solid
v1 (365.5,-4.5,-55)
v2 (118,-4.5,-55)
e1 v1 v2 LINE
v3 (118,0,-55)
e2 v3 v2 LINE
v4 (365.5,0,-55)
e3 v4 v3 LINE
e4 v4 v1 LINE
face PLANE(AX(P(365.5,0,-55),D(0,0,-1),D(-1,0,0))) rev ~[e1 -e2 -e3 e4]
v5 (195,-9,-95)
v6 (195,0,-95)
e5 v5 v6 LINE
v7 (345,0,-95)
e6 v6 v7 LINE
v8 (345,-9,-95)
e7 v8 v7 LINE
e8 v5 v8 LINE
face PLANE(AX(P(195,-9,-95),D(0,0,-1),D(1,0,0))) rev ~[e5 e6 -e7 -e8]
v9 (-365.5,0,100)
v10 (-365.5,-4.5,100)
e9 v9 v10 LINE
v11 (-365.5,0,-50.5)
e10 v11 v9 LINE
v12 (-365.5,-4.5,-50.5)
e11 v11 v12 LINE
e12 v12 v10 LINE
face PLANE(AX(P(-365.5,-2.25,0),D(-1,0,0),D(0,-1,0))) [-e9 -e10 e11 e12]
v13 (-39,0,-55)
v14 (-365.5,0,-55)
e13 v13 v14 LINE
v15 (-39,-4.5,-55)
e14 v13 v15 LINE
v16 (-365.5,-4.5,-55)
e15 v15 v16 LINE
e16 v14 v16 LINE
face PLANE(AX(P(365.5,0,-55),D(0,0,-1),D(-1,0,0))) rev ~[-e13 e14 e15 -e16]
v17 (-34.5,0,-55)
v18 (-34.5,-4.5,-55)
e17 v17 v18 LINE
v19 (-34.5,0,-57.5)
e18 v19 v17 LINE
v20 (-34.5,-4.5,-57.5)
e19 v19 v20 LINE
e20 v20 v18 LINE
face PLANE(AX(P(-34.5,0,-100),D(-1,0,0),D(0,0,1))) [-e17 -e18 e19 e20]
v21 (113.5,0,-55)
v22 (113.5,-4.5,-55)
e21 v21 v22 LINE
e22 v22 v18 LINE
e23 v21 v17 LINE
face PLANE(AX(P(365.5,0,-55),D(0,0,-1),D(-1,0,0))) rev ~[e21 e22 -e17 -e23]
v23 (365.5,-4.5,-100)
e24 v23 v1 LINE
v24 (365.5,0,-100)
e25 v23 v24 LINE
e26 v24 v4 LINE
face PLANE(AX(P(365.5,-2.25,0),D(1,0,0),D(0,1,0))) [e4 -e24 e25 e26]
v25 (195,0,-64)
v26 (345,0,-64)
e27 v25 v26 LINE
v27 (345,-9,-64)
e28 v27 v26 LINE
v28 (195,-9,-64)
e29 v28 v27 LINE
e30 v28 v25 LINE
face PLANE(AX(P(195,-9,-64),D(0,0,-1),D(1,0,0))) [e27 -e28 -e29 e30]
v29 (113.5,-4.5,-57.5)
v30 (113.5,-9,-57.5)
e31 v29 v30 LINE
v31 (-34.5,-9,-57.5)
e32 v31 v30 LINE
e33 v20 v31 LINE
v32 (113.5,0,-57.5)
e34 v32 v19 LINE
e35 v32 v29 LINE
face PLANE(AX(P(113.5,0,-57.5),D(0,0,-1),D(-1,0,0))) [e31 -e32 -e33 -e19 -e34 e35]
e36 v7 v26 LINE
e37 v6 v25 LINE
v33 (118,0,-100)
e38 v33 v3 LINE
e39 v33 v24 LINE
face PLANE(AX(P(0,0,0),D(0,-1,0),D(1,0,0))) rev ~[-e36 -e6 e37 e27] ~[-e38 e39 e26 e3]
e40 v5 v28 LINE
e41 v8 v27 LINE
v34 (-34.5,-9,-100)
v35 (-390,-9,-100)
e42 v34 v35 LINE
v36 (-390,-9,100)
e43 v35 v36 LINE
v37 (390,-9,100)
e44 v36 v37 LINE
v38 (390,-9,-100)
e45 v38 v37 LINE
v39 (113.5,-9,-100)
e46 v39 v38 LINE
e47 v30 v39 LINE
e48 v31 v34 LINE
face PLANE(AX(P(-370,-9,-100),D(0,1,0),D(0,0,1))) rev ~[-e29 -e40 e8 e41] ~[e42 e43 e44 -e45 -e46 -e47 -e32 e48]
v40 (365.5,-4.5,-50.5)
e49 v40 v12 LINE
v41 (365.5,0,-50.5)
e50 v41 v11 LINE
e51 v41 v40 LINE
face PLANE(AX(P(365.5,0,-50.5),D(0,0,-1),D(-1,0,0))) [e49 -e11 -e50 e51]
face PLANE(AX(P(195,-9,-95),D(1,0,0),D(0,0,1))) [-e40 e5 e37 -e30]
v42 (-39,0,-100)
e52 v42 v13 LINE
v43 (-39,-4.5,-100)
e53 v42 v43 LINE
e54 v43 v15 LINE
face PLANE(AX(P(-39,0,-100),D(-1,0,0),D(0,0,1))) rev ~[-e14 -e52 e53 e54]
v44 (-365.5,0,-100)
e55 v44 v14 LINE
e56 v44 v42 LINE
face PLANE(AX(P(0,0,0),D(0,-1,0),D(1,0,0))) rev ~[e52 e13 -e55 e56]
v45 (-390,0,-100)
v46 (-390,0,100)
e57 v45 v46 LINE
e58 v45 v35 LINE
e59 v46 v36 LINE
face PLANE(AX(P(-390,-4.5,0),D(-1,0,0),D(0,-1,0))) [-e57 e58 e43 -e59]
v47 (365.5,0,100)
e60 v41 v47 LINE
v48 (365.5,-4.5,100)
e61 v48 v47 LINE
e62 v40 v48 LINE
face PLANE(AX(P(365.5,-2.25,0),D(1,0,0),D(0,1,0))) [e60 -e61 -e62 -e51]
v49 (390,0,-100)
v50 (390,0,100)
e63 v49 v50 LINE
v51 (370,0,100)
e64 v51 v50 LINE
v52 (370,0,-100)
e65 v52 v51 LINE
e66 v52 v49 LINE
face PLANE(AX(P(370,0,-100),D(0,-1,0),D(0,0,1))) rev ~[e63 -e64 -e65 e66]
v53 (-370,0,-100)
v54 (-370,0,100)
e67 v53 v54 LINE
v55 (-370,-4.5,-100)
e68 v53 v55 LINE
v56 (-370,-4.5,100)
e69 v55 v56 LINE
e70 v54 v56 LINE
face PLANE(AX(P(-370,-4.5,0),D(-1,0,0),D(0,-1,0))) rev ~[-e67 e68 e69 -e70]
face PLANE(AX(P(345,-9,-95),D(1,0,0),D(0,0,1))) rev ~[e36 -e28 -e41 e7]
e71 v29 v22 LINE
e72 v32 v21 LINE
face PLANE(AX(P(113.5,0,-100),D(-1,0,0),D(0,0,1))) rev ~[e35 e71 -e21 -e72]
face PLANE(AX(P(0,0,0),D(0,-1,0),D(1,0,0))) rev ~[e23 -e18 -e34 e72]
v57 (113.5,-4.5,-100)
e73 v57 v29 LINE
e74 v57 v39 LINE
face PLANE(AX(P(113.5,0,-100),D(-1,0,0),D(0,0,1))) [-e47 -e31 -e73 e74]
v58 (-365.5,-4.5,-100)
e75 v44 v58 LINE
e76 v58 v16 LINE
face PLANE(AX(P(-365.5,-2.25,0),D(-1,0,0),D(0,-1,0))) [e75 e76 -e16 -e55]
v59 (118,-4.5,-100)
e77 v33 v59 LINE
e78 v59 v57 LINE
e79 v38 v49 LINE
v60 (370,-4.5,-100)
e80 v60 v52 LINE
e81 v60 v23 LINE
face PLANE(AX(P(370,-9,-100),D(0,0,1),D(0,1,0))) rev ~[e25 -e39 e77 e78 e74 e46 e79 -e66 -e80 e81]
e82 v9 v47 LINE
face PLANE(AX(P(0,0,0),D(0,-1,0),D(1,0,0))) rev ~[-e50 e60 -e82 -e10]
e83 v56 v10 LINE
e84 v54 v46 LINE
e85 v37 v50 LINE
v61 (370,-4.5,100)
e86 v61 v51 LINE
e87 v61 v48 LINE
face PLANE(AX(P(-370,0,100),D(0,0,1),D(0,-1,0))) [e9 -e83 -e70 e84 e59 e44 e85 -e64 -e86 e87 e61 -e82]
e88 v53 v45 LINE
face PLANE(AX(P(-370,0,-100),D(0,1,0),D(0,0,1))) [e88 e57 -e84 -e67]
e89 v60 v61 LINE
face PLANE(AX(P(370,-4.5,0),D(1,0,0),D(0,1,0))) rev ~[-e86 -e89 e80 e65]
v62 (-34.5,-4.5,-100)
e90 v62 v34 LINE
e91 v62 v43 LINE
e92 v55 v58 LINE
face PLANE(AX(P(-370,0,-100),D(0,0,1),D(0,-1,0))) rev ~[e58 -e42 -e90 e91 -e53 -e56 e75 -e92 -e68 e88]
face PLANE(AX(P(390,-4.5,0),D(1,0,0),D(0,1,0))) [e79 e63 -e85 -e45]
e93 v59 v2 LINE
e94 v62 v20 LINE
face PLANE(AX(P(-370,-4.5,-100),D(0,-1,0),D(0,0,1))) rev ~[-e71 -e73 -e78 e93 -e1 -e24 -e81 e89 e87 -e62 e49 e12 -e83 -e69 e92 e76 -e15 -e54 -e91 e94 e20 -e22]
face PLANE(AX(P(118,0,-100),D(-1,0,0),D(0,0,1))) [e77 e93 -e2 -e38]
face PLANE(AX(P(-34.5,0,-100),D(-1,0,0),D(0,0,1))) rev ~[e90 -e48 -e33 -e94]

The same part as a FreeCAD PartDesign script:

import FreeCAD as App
import Part
import Sketcher

doc = App.newDocument("Part")
body = doc.addObject("PartDesign::Body", "Body")

sketch1 = body.newObject("Sketcher::SketchObject", "Sketch")
sketch1.AttachmentSupport = (doc.getObject("XZ_Plane"), [""])
sketch1.MapMode = "FlatFace"
sketch1.addGeometry(Part.LineSegment(App.Vector(-370, 100, 0), App.Vector(-370, -100, 0)), False)
sketch1.addGeometry(Part.LineSegment(App.Vector(-370, -100, 0), App.Vector(370, -100, 0)), False)
sketch1.addGeometry(Part.LineSegment(App.Vector(370, -100, 0), App.Vector(370, 100, 0)), False)
sketch1.addGeometry(Part.LineSegment(App.Vector(370, 100, 0), App.Vector(-370, 100, 0)), False)
sketch1.addConstraint(Sketcher.Constraint("Coincident", 0, 2, 1, 1))
sketch1.addConstraint(Sketcher.Constraint("Coincident", 1, 2, 2, 1))
sketch1.addConstraint(Sketcher.Constraint("Coincident", 2, 2, 3, 1))
sketch1.addConstraint(Sketcher.Constraint("Coincident", 3, 2, 0, 1))
sketch1.addConstraint(Sketcher.Constraint("Vertical", 0))
sketch1.addConstraint(Sketcher.Constraint("Horizontal", 1))
sketch1.addConstraint(Sketcher.Constraint("Vertical", 2))
sketch1.addConstraint(Sketcher.Constraint("Horizontal", 3))
sketch1.addConstraint(Sketcher.Constraint("Symmetric", 0, 2, 2, 2, -1, 1))
sketch1.addConstraint(Sketcher.Constraint("DistanceX", 1, 1, 1, 2, 740.0))
sketch1.addConstraint(Sketcher.Constraint("DistanceY", 0, 2, 0, 1, 200.0))
pad1 = body.newObject("PartDesign::Pad", "Pad")
pad1.Profile = sketch1
pad1.Length = 9

sketch2 = body.newObject("Sketcher::SketchObject", "Sketch001")
sketch2.AttachmentSupport = (doc.getObject("YZ_Plane"), [""])
sketch2.MapMode = "FlatFace"
sketch2.AttachmentOffset = App.Placement(App.Vector(0, 0, 370), App.Rotation())
sketch2.addGeometry(Part.LineSegment(App.Vector(-4.5, 100, 0), App.Vector(-4.5, -100, 0)), False)
sketch2.addGeometry(Part.LineSegment(App.Vector(-4.5, -100, 0), App.Vector(0, -100, 0)), False)
sketch2.addGeometry(Part.LineSegment(App.Vector(0, -100, 0), App.Vector(0, 100, 0)), False)
sketch2.addGeometry(Part.LineSegment(App.Vector(0, 100, 0), App.Vector(-4.5, 100, 0)), False)
sketch2.addConstraint(Sketcher.Constraint("Coincident", 0, 2, 1, 1))
sketch2.addConstraint(Sketcher.Constraint("Coincident", 1, 2, 2, 1))
sketch2.addConstraint(Sketcher.Constraint("Coincident", 2, 2, 3, 1))
sketch2.addConstraint(Sketcher.Constraint("Coincident", 3, 2, 0, 1))
sketch2.addConstraint(Sketcher.Constraint("Vertical", 0))
sketch2.addConstraint(Sketcher.Constraint("Horizontal", 1))
sketch2.addConstraint(Sketcher.Constraint("Vertical", 2))
sketch2.addConstraint(Sketcher.Constraint("Horizontal", 3))
sketch2.addConstraint(Sketcher.Constraint("Symmetric", 1, 2, 2, 2, -1, 1))
sketch2.addConstraint(Sketcher.Constraint("DistanceY", 0, 2, 0, 1, 200.0))
sketch2.addConstraint(Sketcher.Constraint("DistanceX", 1, 1, 1, 2, 4.5))
pocket1 = body.newObject("PartDesign::Pocket", "Pocket")
pocket1.Profile = sketch2
pocket1.Length = 4.5

sketch3 = body.newObject("Sketcher::SketchObject", "Sketch002")
sketch3.AttachmentSupport = (doc.getObject("YZ_Plane"), [""])
sketch3.MapMode = "FlatFace"
sketch3.AttachmentOffset = App.Placement(App.Vector(0, 0, -370), App.Rotation())
sketch3.addGeometry(Part.LineSegment(App.Vector(0, 100, 0), App.Vector(0, -100, 0)), False)
sketch3.addGeometry(Part.LineSegment(App.Vector(0, -100, 0), App.Vector(-4.5, -100, 0)), False)
sketch3.addGeometry(Part.LineSegment(App.Vector(-4.5, -100, 0), App.Vector(-4.5, 100, 0)), False)
sketch3.addGeometry(Part.LineSegment(App.Vector(-4.5, 100, 0), App.Vector(0, 100, 0)), False)
sketch3.addConstraint(Sketcher.Constraint("Coincident", 0, 2, 1, 1))
sketch3.addConstraint(Sketcher.Constraint("Coincident", 1, 2, 2, 1))
sketch3.addConstraint(Sketcher.Constraint("Coincident", 2, 2, 3, 1))
sketch3.addConstraint(Sketcher.Constraint("Coincident", 3, 2, 0, 1))
sketch3.addConstraint(Sketcher.Constraint("Vertical", 0))
sketch3.addConstraint(Sketcher.Constraint("Horizontal", 1))
sketch3.addConstraint(Sketcher.Constraint("Vertical", 2))
sketch3.addConstraint(Sketcher.Constraint("Horizontal", 3))
sketch3.addConstraint(Sketcher.Constraint("Symmetric", 0, 2, 3, 2, -1, 1))
sketch3.addConstraint(Sketcher.Constraint("DistanceY", 0, 2, 0, 1, 200.0))
sketch3.addConstraint(Sketcher.Constraint("DistanceX", 1, 2, 1, 1, 4.5))
pocket2 = body.newObject("PartDesign::Pocket", "Pocket001")
pocket2.Profile = sketch3
pocket2.Length = 4.5
pocket2.Reversed = True

sketch4 = body.newObject("Sketcher::SketchObject", "Sketch003")
sketch4.AttachmentSupport = (doc.getObject("XZ_Plane"), [""])
sketch4.MapMode = "FlatFace"
sketch4.addGeometry(Part.LineSegment(App.Vector(365.5, -50.5, 0), App.Vector(365.5, -55, 0)), False)
sketch4.addGeometry(Part.LineSegment(App.Vector(365.5, -55, 0), App.Vector(-365.5, -55, 0)), False)
sketch4.addGeometry(Part.LineSegment(App.Vector(-365.5, -55, 0), App.Vector(-365.5, -50.5, 0)), False)
sketch4.addGeometry(Part.LineSegment(App.Vector(-365.5, -50.5, 0), App.Vector(365.5, -50.5, 0)), False)
sketch4.addConstraint(Sketcher.Constraint("Coincident", 0, 2, 1, 1))
sketch4.addConstraint(Sketcher.Constraint("Coincident", 1, 2, 2, 1))
sketch4.addConstraint(Sketcher.Constraint("Coincident", 2, 2, 3, 1))
sketch4.addConstraint(Sketcher.Constraint("Coincident", 3, 2, 0, 1))
sketch4.addConstraint(Sketcher.Constraint("Vertical", 0))
sketch4.addConstraint(Sketcher.Constraint("Horizontal", 1))
sketch4.addConstraint(Sketcher.Constraint("Vertical", 2))
sketch4.addConstraint(Sketcher.Constraint("Horizontal", 3))
sketch4.addConstraint(Sketcher.Constraint("DistanceX", 1, 2, 1, 1, 731.0))
sketch4.addConstraint(Sketcher.Constraint("DistanceY", 0, 2, 0, 1, 4.5))
sketch4.addConstraint(Sketcher.Constraint("DistanceY", 0, 2, -1, 1, 55.0))
sketch4.addConstraint(Sketcher.Constraint("DistanceX", -1, 1, 0, 2, 365.5))
pocket3 = body.newObject("PartDesign::Pocket", "Pocket002")
pocket3.Profile = sketch4
pocket3.Length = 4.5
pocket3.Reversed = True

sketch5 = body.newObject("Sketcher::SketchObject", "Sketch004")
sketch5.AttachmentSupport = (doc.getObject("XZ_Plane"), [""])
sketch5.MapMode = "FlatFace"
sketch5.AttachmentOffset = App.Placement(App.Vector(0, 0, 9), App.Rotation())
sketch5.addGeometry(Part.LineSegment(App.Vector(195, -64, 0), App.Vector(195, -95, 0)), False)
sketch5.addGeometry(Part.LineSegment(App.Vector(195, -95, 0), App.Vector(345, -95, 0)), False)
sketch5.addGeometry(Part.LineSegment(App.Vector(345, -95, 0), App.Vector(345, -64, 0)), False)
sketch5.addGeometry(Part.LineSegment(App.Vector(345, -64, 0), App.Vector(195, -64, 0)), False)
sketch5.addConstraint(Sketcher.Constraint("Coincident", 0, 2, 1, 1))
sketch5.addConstraint(Sketcher.Constraint("Coincident", 1, 2, 2, 1))
sketch5.addConstraint(Sketcher.Constraint("Coincident", 2, 2, 3, 1))
sketch5.addConstraint(Sketcher.Constraint("Coincident", 3, 2, 0, 1))
sketch5.addConstraint(Sketcher.Constraint("Vertical", 0))
sketch5.addConstraint(Sketcher.Constraint("Horizontal", 1))
sketch5.addConstraint(Sketcher.Constraint("Vertical", 2))
sketch5.addConstraint(Sketcher.Constraint("Horizontal", 3))
sketch5.addConstraint(Sketcher.Constraint("DistanceX", 1, 1, 1, 2, 150.0))
sketch5.addConstraint(Sketcher.Constraint("DistanceY", 0, 2, 0, 1, 31.0))
sketch5.addConstraint(Sketcher.Constraint("DistanceX", -1, 1, 0, 2, 195.0))
sketch5.addConstraint(Sketcher.Constraint("DistanceY", 0, 2, -1, 1, 95.0))
pocket4 = body.newObject("PartDesign::Pocket", "Pocket003")
pocket4.Profile = sketch5
pocket4.Type = "ThroughAll"

sketch6 = body.newObject("Sketcher::SketchObject", "Sketch005")
sketch6.AttachmentSupport = (doc.getObject("XZ_Plane"), [""])
sketch6.MapMode = "FlatFace"
sketch6.addGeometry(Part.LineSegment(App.Vector(113.5, -57.5, 0), App.Vector(113.5, -100, 0)), False)
sketch6.addGeometry(Part.LineSegment(App.Vector(113.5, -100, 0), App.Vector(-34.5, -100, 0)), False)
sketch6.addGeometry(Part.LineSegment(App.Vector(-34.5, -100, 0), App.Vector(-34.5, -57.5, 0)), False)
sketch6.addGeometry(Part.LineSegment(App.Vector(-34.5, -57.5, 0), App.Vector(113.5, -57.5, 0)), False)
sketch6.addConstraint(Sketcher.Constraint("Coincident", 0, 2, 1, 1))
sketch6.addConstraint(Sketcher.Constraint("Coincident", 1, 2, 2, 1))
sketch6.addConstraint(Sketcher.Constraint("Coincident", 2, 2, 3, 1))
sketch6.addConstraint(Sketcher.Constraint("Coincident", 3, 2, 0, 1))
sketch6.addConstraint(Sketcher.Constraint("Vertical", 0))
sketch6.addConstraint(Sketcher.Constraint("Horizontal", 1))
sketch6.addConstraint(Sketcher.Constraint("Vertical", 2))
sketch6.addConstraint(Sketcher.Constraint("Horizontal", 3))
sketch6.addConstraint(Sketcher.Constraint("DistanceX", 1, 2, 1, 1, 148.0))
sketch6.addConstraint(Sketcher.Constraint("DistanceY", 0, 2, 0, 1, 42.5))
sketch6.addConstraint(Sketcher.Constraint("DistanceY", 0, 2, -1, 1, 100.0))
sketch6.addConstraint(Sketcher.Constraint("DistanceX", -1, 1, 0, 2, 113.5))
pocket5 = body.newObject("PartDesign::Pocket", "Pocket004")
pocket5.Profile = sketch6
pocket5.Type = "ThroughAll"
pocket5.Reversed = True

sketch7 = body.newObject("Sketcher::SketchObject", "Sketch006")
sketch7.AttachmentSupport = (doc.getObject("XZ_Plane"), [""])
sketch7.MapMode = "FlatFace"
sketch7.addGeometry(Part.LineSegment(App.Vector(-34.5, -55, 0), App.Vector(-34.5, -100, 0)), False)
sketch7.addGeometry(Part.LineSegment(App.Vector(-34.5, -100, 0), App.Vector(-39, -100, 0)), False)
sketch7.addGeometry(Part.LineSegment(App.Vector(-39, -100, 0), App.Vector(-39, -55, 0)), False)
sketch7.addGeometry(Part.LineSegment(App.Vector(-39, -55, 0), App.Vector(-34.5, -55, 0)), False)
sketch7.addGeometry(Part.LineSegment(App.Vector(118, -55, 0), App.Vector(118, -100, 0)), False)
sketch7.addGeometry(Part.LineSegment(App.Vector(118, -100, 0), App.Vector(113.5, -100, 0)), False)
sketch7.addGeometry(Part.LineSegment(App.Vector(113.5, -100, 0), App.Vector(113.5, -55, 0)), False)
sketch7.addGeometry(Part.LineSegment(App.Vector(113.5, -55, 0), App.Vector(118, -55, 0)), False)
sketch7.addConstraint(Sketcher.Constraint("Coincident", 0, 2, 1, 1))
sketch7.addConstraint(Sketcher.Constraint("Coincident", 1, 2, 2, 1))
sketch7.addConstraint(Sketcher.Constraint("Coincident", 2, 2, 3, 1))
sketch7.addConstraint(Sketcher.Constraint("Coincident", 3, 2, 0, 1))
sketch7.addConstraint(Sketcher.Constraint("Coincident", 4, 2, 5, 1))
sketch7.addConstraint(Sketcher.Constraint("Coincident", 5, 2, 6, 1))
sketch7.addConstraint(Sketcher.Constraint("Coincident", 6, 2, 7, 1))
sketch7.addConstraint(Sketcher.Constraint("Coincident", 7, 2, 4, 1))
sketch7.addConstraint(Sketcher.Constraint("Vertical", 0))
sketch7.addConstraint(Sketcher.Constraint("Horizontal", 1))
sketch7.addConstraint(Sketcher.Constraint("Vertical", 2))
sketch7.addConstraint(Sketcher.Constraint("Horizontal", 3))
sketch7.addConstraint(Sketcher.Constraint("Vertical", 4))
sketch7.addConstraint(Sketcher.Constraint("Horizontal", 5))
sketch7.addConstraint(Sketcher.Constraint("Vertical", 6))
sketch7.addConstraint(Sketcher.Constraint("Horizontal", 7))
sketch7.addConstraint(Sketcher.Constraint("Horizontal", 1, 2, 4, 2))
sketch7.addConstraint(Sketcher.Constraint("Horizontal", 3, 2, 6, 2))
sketch7.addConstraint(Sketcher.Constraint("Equal", 3, 5))
sketch7.addConstraint(Sketcher.Constraint("DistanceY", 0, 2, 0, 1, 45.0))
sketch7.addConstraint(Sketcher.Constraint("DistanceX", 1, 2, 1, 1, 4.5))
sketch7.addConstraint(Sketcher.Constraint("DistanceY", 0, 2, -1, 1, 100.0))
sketch7.addConstraint(Sketcher.Constraint("DistanceX", 1, 2, -1, 1, 39.0))
sketch7.addConstraint(Sketcher.Constraint("DistanceX", -1, 1, 4, 2, 118.0))
pocket6 = body.newObject("PartDesign::Pocket", "Pocket005")
pocket6.Profile = sketch7
pocket6.Length = 4.5
pocket6.Reversed = True

sketch8 = body.newObject("Sketcher::SketchObject", "Sketch007")
sketch8.AttachmentSupport = (doc.getObject("YZ_Plane"), [""])
sketch8.MapMode = "FlatFace"
sketch8.AttachmentOffset = App.Placement(App.Vector(0, 0, 370), App.Rotation())
sketch8.addGeometry(Part.LineSegment(App.Vector(-9, 100, 0), App.Vector(-9, -100, 0)), False)
sketch8.addGeometry(Part.LineSegment(App.Vector(-9, -100, 0), App.Vector(0, -100, 0)), False)
sketch8.addGeometry(Part.LineSegment(App.Vector(0, -100, 0), App.Vector(0, 100, 0)), False)
sketch8.addGeometry(Part.LineSegment(App.Vector(0, 100, 0), App.Vector(-9, 100, 0)), False)
sketch8.addConstraint(Sketcher.Constraint("Coincident", 0, 2, 1, 1))
sketch8.addConstraint(Sketcher.Constraint("Coincident", 1, 2, 2, 1))
sketch8.addConstraint(Sketcher.Constraint("Coincident", 2, 2, 3, 1))
sketch8.addConstraint(Sketcher.Constraint("Coincident", 3, 2, 0, 1))
sketch8.addConstraint(Sketcher.Constraint("Vertical", 0))
sketch8.addConstraint(Sketcher.Constraint("Horizontal", 1))
sketch8.addConstraint(Sketcher.Constraint("Vertical", 2))
sketch8.addConstraint(Sketcher.Constraint("Horizontal", 3))
sketch8.addConstraint(Sketcher.Constraint("Symmetric", 1, 2, 2, 2, -1, 1))
sketch8.addConstraint(Sketcher.Constraint("DistanceX", 1, 1, 1, 2, 9.0))
sketch8.addConstraint(Sketcher.Constraint("DistanceY", 0, 2, 0, 1, 200.0))
pad2 = body.newObject("PartDesign::Pad", "Pad001")
pad2.Profile = sketch8
pad2.Length = 20

sketch9 = body.newObject("Sketcher::SketchObject", "Sketch008")
sketch9.AttachmentSupport = (doc.getObject("YZ_Plane"), [""])
sketch9.MapMode = "FlatFace"
sketch9.AttachmentOffset = App.Placement(App.Vector(0, 0, -370), App.Rotation())
sketch9.addGeometry(Part.LineSegment(App.Vector(0, 100, 0), App.Vector(0, -100, 0)), False)
sketch9.addGeometry(Part.LineSegment(App.Vector(0, -100, 0), App.Vector(-9, -100, 0)), False)
sketch9.addGeometry(Part.LineSegment(App.Vector(-9, -100, 0), App.Vector(-9, 100, 0)), False)
sketch9.addGeometry(Part.LineSegment(App.Vector(-9, 100, 0), App.Vector(0, 100, 0)), False)
sketch9.addConstraint(Sketcher.Constraint("Coincident", 0, 2, 1, 1))
sketch9.addConstraint(Sketcher.Constraint("Coincident", 1, 2, 2, 1))
sketch9.addConstraint(Sketcher.Constraint("Coincident", 2, 2, 3, 1))
sketch9.addConstraint(Sketcher.Constraint("Coincident", 3, 2, 0, 1))
sketch9.addConstraint(Sketcher.Constraint("Vertical", 0))
sketch9.addConstraint(Sketcher.Constraint("Horizontal", 1))
sketch9.addConstraint(Sketcher.Constraint("Vertical", 2))
sketch9.addConstraint(Sketcher.Constraint("Horizontal", 3))
sketch9.addConstraint(Sketcher.Constraint("Symmetric", 0, 2, 3, 2, -1, 1))
sketch9.addConstraint(Sketcher.Constraint("DistanceX", 1, 2, 1, 1, 9.0))
sketch9.addConstraint(Sketcher.Constraint("DistanceY", 0, 2, 0, 1, 200.0))
pad3 = body.newObject("PartDesign::Pad", "Pad002")
pad3.Profile = sketch9
pad3.Length = 20
pad3.Reversed = True

doc.recompute()
